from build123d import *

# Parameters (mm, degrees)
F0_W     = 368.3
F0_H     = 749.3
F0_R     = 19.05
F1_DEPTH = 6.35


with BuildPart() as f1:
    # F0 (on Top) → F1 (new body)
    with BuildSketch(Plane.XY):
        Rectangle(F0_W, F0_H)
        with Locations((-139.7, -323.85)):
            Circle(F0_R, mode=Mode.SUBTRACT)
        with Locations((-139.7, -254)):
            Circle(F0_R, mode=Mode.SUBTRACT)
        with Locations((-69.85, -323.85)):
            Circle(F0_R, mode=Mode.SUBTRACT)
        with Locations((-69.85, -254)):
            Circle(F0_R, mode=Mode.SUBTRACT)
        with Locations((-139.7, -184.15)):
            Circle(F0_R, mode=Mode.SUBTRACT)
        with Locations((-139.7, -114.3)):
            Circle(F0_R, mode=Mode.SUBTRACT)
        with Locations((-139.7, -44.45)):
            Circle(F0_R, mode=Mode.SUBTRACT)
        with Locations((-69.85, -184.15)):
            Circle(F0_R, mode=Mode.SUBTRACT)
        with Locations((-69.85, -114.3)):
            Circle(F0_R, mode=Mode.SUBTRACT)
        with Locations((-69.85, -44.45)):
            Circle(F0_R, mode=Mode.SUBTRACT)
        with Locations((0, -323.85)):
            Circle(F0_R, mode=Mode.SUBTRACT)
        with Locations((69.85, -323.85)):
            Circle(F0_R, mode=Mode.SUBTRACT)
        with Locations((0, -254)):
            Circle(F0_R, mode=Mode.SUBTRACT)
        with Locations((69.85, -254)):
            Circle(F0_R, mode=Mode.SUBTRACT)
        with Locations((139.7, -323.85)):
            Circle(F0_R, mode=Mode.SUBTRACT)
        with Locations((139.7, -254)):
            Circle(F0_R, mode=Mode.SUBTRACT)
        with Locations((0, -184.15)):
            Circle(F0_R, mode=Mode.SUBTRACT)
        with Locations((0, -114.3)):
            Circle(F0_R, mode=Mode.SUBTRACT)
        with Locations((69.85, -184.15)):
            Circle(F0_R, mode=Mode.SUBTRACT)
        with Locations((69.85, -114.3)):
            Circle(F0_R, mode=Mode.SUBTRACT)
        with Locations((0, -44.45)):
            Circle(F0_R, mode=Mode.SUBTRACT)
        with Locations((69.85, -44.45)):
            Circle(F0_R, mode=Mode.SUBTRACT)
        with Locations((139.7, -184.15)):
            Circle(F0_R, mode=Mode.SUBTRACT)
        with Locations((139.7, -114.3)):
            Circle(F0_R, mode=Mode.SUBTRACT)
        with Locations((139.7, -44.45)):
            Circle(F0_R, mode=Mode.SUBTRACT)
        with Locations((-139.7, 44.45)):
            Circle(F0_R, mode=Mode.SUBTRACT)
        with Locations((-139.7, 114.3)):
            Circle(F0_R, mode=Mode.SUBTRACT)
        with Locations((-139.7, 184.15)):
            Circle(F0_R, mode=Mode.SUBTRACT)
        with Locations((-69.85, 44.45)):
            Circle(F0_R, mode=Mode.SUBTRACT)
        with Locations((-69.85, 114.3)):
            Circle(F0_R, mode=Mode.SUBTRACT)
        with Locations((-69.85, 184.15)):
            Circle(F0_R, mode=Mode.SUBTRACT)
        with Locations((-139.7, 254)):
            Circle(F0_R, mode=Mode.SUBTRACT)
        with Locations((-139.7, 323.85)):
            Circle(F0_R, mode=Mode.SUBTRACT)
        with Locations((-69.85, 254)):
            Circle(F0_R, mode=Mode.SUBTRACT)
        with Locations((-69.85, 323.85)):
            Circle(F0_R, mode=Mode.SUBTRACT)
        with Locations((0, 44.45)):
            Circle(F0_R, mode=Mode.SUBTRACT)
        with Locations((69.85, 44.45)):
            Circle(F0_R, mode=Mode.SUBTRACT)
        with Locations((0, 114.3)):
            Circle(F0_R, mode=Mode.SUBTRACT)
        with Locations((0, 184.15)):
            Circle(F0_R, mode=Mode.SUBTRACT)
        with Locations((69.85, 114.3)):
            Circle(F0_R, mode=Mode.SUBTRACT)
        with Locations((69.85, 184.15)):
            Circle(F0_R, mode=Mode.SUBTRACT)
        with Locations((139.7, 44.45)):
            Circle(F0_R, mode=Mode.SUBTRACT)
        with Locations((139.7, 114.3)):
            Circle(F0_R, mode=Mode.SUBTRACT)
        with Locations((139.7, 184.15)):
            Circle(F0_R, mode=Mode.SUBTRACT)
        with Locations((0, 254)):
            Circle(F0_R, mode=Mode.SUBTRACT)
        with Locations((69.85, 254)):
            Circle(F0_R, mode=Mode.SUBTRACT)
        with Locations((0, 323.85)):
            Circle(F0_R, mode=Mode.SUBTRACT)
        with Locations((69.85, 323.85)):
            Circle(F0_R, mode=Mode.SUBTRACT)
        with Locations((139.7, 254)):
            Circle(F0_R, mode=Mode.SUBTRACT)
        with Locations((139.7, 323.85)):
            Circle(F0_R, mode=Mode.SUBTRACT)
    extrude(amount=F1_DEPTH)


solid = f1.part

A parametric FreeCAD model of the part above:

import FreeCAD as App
import Part
import Sketcher
Q = App.Units.Quantity


def add_polygon(sketch, points):
    """Adds a closed chain of lines whose ends are joined by coincident constraints."""
    first, n = sketch.GeometryCount, len(points)
    for a, b in zip(points, points[1:] + points[:1]):
        sketch.addGeometry(Part.LineSegment(App.Vector(*a, 0), App.Vector(*b, 0)), False)
    for i in range(n):
        sketch.addConstraint(Sketcher.Constraint("Coincident", first + i, 2, first + (i + 1) % n, 1))

doc = App.newDocument("Part")
body = doc.addObject("PartDesign::Body", "Body")

sketch1 = body.newObject("Sketcher::SketchObject", "Sketch")
sketch1.AttachmentSupport = (doc.getObject("XY_Plane"), [""])
sketch1.MapMode = "FlatFace"
add_polygon(sketch1, [(-184, 375), (-184, -375), (184, -375), (184, 375)])
sketch1.addGeometry(Part.Circle(App.Vector(-140, -324, 0), App.Vector(0, 0, 1), 19), False)
sketch1.addGeometry(Part.Circle(App.Vector(-140, -254, 0), App.Vector(0, 0, 1), 19), False)
sketch1.addGeometry(Part.Circle(App.Vector(-140, -184, 0), App.Vector(0, 0, 1), 19), False)
sketch1.addGeometry(Part.Circle(App.Vector(-70, -324, 0), App.Vector(0, 0, 1), 19), False)
sketch1.addGeometry(Part.Circle(App.Vector(-70, -254, 0), App.Vector(0, 0, 1), 19), False)
sketch1.addGeometry(Part.Circle(App.Vector(-70, -184, 0), App.Vector(0, 0, 1), 19), False)
sketch1.addGeometry(Part.Circle(App.Vector(-140, -114, 0), App.Vector(0, 0, 1), 19), False)
sketch1.addGeometry(Part.Circle(App.Vector(-140, -44, 0), App.Vector(0, 0, 1), 19), False)
sketch1.addGeometry(Part.Circle(App.Vector(-70, -114, 0), App.Vector(0, 0, 1), 19), False)
sketch1.addGeometry(Part.Circle(App.Vector(-70, -44, 0), App.Vector(0, 0, 1), 19), False)
sketch1.addGeometry(Part.Circle(App.Vector(0, -324, 0), App.Vector(0, 0, 1), 19), False)
sketch1.addGeometry(Part.Circle(App.Vector(70, -324, 0), App.Vector(0, 0, 1), 19), False)
sketch1.addGeometry(Part.Circle(App.Vector(0, -254, 0), App.Vector(0, 0, 1), 19), False)
sketch1.addGeometry(Part.Circle(App.Vector(0, -184, 0), App.Vector(0, 0, 1), 19), False)
sketch1.addGeometry(Part.Circle(App.Vector(70, -254, 0), App.Vector(0, 0, 1), 19), False)
sketch1.addGeometry(Part.Circle(App.Vector(70, -184, 0), App.Vector(0, 0, 1), 19), False)
sketch1.addGeometry(Part.Circle(App.Vector(140, -324, 0), App.Vector(0, 0, 1), 19), False)
sketch1.addGeometry(Part.Circle(App.Vector(140, -254, 0), App.Vector(0, 0, 1), 19), False)
sketch1.addGeometry(Part.Circle(App.Vector(140, -184, 0), App.Vector(0, 0, 1), 19), False)
sketch1.addGeometry(Part.Circle(App.Vector(0, -114, 0), App.Vector(0, 0, 1), 19), False)
sketch1.addGeometry(Part.Circle(App.Vector(70, -114, 0), App.Vector(0, 0, 1), 19), False)
sketch1.addGeometry(Part.Circle(App.Vector(0, -44, 0), App.Vector(0, 0, 1), 19), False)
sketch1.addGeometry(Part.Circle(App.Vector(70, -44, 0), App.Vector(0, 0, 1), 19), False)
sketch1.addGeometry(Part.Circle(App.Vector(140, -114, 0), App.Vector(0, 0, 1), 19), False)
sketch1.addGeometry(Part.Circle(App.Vector(140, -44, 0), App.Vector(0, 0, 1), 19), False)
sketch1.addGeometry(Part.Circle(App.Vector(-140, 44, 0), App.Vector(0, 0, 1), 19), False)
sketch1.addGeometry(Part.Circle(App.Vector(-140, 114, 0), App.Vector(0, 0, 1), 19), False)
sketch1.addGeometry(Part.Circle(App.Vector(-70, 44, 0), App.Vector(0, 0, 1), 19), False)
sketch1.addGeometry(Part.Circle(App.Vector(-70, 114, 0), App.Vector(0, 0, 1), 19), False)
sketch1.addGeometry(Part.Circle(App.Vector(-140, 184, 0), App.Vector(0, 0, 1), 19), False)
sketch1.addGeometry(Part.Circle(App.Vector(-140, 254, 0), App.Vector(0, 0, 1), 19), False)
sketch1.addGeometry(Part.Circle(App.Vector(-140, 324, 0), App.Vector(0, 0, 1), 19), False)
sketch1.addGeometry(Part.Circle(App.Vector(-70, 184, 0), App.Vector(0, 0, 1), 19), False)
sketch1.addGeometry(Part.Circle(App.Vector(-70, 254, 0), App.Vector(0, 0, 1), 19), False)
sketch1.addGeometry(Part.Circle(App.Vector(-70, 324, 0), App.Vector(0, 0, 1), 19), False)
sketch1.addGeometry(Part.Circle(App.Vector(0, 44, 0), App.Vector(0, 0, 1), 19), False)
sketch1.addGeometry(Part.Circle(App.Vector(70, 44, 0), App.Vector(0, 0, 1), 19), False)
sketch1.addGeometry(Part.Circle(App.Vector(0, 114, 0), App.Vector(0, 0, 1), 19), False)
sketch1.addGeometry(Part.Circle(App.Vector(70, 114, 0), App.Vector(0, 0, 1), 19), False)
sketch1.addGeometry(Part.Circle(App.Vector(140, 44, 0), App.Vector(0, 0, 1), 19), False)
sketch1.addGeometry(Part.Circle(App.Vector(140, 114, 0), App.Vector(0, 0, 1), 19), False)
sketch1.addGeometry(Part.Circle(App.Vector(0, 184, 0), App.Vector(0, 0, 1), 19), False)
sketch1.addGeometry(Part.Circle(App.Vector(0, 254, 0), App.Vector(0, 0, 1), 19), False)
sketch1.addGeometry(Part.Circle(App.Vector(70, 184, 0), App.Vector(0, 0, 1), 19), False)
sketch1.addGeometry(Part.Circle(App.Vector(70, 254, 0), App.Vector(0, 0, 1), 19), False)
sketch1.addGeometry(Part.Circle(App.Vector(0, 324, 0), App.Vector(0, 0, 1), 19), False)
sketch1.addGeometry(Part.Circle(App.Vector(70, 324, 0), App.Vector(0, 0, 1), 19), False)
sketch1.addGeometry(Part.Circle(App.Vector(140, 184, 0), App.Vector(0, 0, 1), 19), False)
sketch1.addGeometry(Part.Circle(App.Vector(140, 254, 0), App.Vector(0, 0, 1), 19), False)
sketch1.addGeometry(Part.Circle(App.Vector(140, 324, 0), App.Vector(0, 0, 1), 19), False)
sketch1.addConstraint([
    Sketcher.Constraint("Vertical", 0),
    Sketcher.Constraint("Horizontal", 1),
    Sketcher.Constraint("Vertical", 2),
    Sketcher.Constraint("Horizontal", 3),
    Sketcher.Constraint("Equal", 4, 5),
    Sketcher.Constraint("Equal", 5, 6),
    Sketcher.Constraint("Equal", 6, 7),
    Sketcher.Constraint("Equal", 7, 8),
    Sketcher.Constraint("Equal", 8, 9),
    Sketcher.Constraint("Equal", 9, 10),
    Sketcher.Constraint("Equal", 10, 11),
    Sketcher.Constraint("Equal", 11, 12),
    Sketcher.Constraint("Equal", 12, 13),
    Sketcher.Constraint("Equal", 13, 14),
    Sketcher.Constraint("Equal", 14, 15),
    Sketcher.Constraint("Equal", 15, 16),
    Sketcher.Constraint("Equal", 16, 17),
    Sketcher.Constraint("Equal", 17, 18),
    Sketcher.Constraint("Equal", 18, 19),
    Sketcher.Constraint("Equal", 19, 20),
    Sketcher.Constraint("Equal", 20, 21),
    Sketcher.Constraint("Equal", 21, 22),
    Sketcher.Constraint("Equal", 22, 23),
    Sketcher.Constraint("Equal", 23, 24),
    Sketcher.Constraint("Equal", 24, 25),
    Sketcher.Constraint("Equal", 25, 26),
    Sketcher.Constraint("Equal", 26, 27),
    Sketcher.Constraint("Equal", 27, 28),
    Sketcher.Constraint("Equal", 28, 29),
    Sketcher.Constraint("Equal", 29, 30),
    Sketcher.Constraint("Equal", 30, 31),
    Sketcher.Constraint("Equal", 31, 32),
    Sketcher.Constraint("Equal", 32, 33),
    Sketcher.Constraint("Equal", 33, 34),
    Sketcher.Constraint("Equal", 34, 35),
    Sketcher.Constraint("Equal", 35, 36),
    Sketcher.Constraint("Equal", 36, 37),
    Sketcher.Constraint("Equal", 37, 38),
    Sketcher.Constraint("Equal", 38, 39),
    Sketcher.Constraint("Equal", 39, 40),
    Sketcher.Constraint("Equal", 40, 41),
    Sketcher.Constraint("Equal", 41, 42),
    Sketcher.Constraint("Equal", 42, 43),
    Sketcher.Constraint("Equal", 43, 44),
    Sketcher.Constraint("Equal", 44, 45),
    Sketcher.Constraint("Equal", 45, 46),
    Sketcher.Constraint("Equal", 46, 47),
    Sketcher.Constraint("Equal", 47, 48),
    Sketcher.Constraint("Equal", 48, 49),
    Sketcher.Constraint("Equal", 49, 50),
    Sketcher.Constraint("Equal", 50, 51),
    Sketcher.Constraint("Equal", 51, 52),
    Sketcher.Constraint("Equal", 52, 53),
    Sketcher.Constraint("Symmetric", 28, 3, 29, 3, -1, 1),
    Sketcher.Constraint("Symmetric", 27, 3, 30, 3, -1, 1),
    Sketcher.Constraint("Symmetric", 26, 3, 31, 3, -1, 1),
    Sketcher.Constraint("Symmetric", 24, 3, 32, 3, -1, 1),
    Sketcher.Constraint("Symmetric", 22, 3, 33, 3, -1, 1),
    Sketcher.Constraint("Symmetric", 21, 3, 34, 3, -1, 1),
    Sketcher.Constraint("Symmetric", 20, 3, 35, 3, -1, 1),
    Sketcher.Constraint("Symmetric", 19, 3, 36, 3, -1, 1),
    Sketcher.Constraint("Symmetric", 18, 3, 37, 3, -1, 1),
    Sketcher.Constraint("Symmetric", 15, 3, 38, 3, -1, 1),
    Sketcher.Constraint("Symmetric", 25, 3, 39, 3, -1, 1),
    Sketcher.Constraint("Symmetric", 13, 3, 40, 3, -1, 1),
    Sketcher.Constraint("Symmetric", 23, 3, 41, 3, -1, 1),
    Sketcher.Constraint("Symmetric", 12, 3, 42, 3, -1, 1),
    Sketcher.Constraint("Symmetric", 11, 3, 43, 3, -1, 1),
    Sketcher.Constraint("Symmetric", 10, 3, 44, 3, -1, 1),
    Sketcher.Constraint("Symmetric", 17, 3, 45, 3, -1, 1),
    Sketcher.Constraint("Symmetric", 16, 3, 46, 3, -1, 1),
    Sketcher.Constraint("Symmetric", 9, 3, 47, 3, -1, 1),
    Sketcher.Constraint("Symmetric", 8, 3, 48, 3, -1, 1),
    Sketcher.Constraint("Symmetric", 14, 3, 49, 3, -1, 1),
    Sketcher.Constraint("Symmetric", 7, 3, 50, 3, -1, 1),
    Sketcher.Constraint("Symmetric", 6, 3, 51, 3, -1, 1),
    Sketcher.Constraint("Symmetric", 5, 3, 52, 3, -1, 1),
    Sketcher.Constraint("Symmetric", 4, 3, 53, 3, -1, 1),
    Sketcher.Constraint("Symmetric", 0, 2, 2, 2, -1, 1),
    Sketcher.Constraint("Symmetric", 7, 3, 15, 3, -2),
    Sketcher.Constraint("Symmetric", 8, 3, 18, 3, -2),
    Sketcher.Constraint("Symmetric", 9, 3, 19, 3, -2),
    Sketcher.Constraint("Symmetric", 4, 3, 20, 3, -2),
    Sketcher.Constraint("Symmetric", 5, 3, 21, 3, -2),
    Sketcher.Constraint("Symmetric", 6, 3, 22, 3, -2),
    Sketcher.Constraint("Symmetric", 12, 3, 24, 3, -2),
    Sketcher.Constraint("Symmetric", 13, 3, 26, 3, -2),
    Sketcher.Constraint("Symmetric", 10, 3, 27, 3, -2),
    Sketcher.Constraint("Symmetric", 11, 3, 28, 3, -2),
    Sketcher.Constraint("PointOnObject", 14, 3, -2),
    Sketcher.Constraint("PointOnObject", 16, 3, -2),
    Sketcher.Constraint("PointOnObject", 17, 3, -2),
    Sketcher.Constraint("PointOnObject", 23, 3, -2),
    Sketcher.Constraint("PointOnObject", 25, 3, -2),
    Sketcher.Constraint("Horizontal", 4, 3, 7, 3),
    Sketcher.Constraint("Horizontal", 5, 3, 8, 3),
    Sketcher.Constraint("Horizontal", 6, 3, 9, 3),
    Sketcher.Constraint("Horizontal", 10, 3, 12, 3),
    Sketcher.Constraint("Horizontal", 11, 3, 13, 3),
    Sketcher.Constraint("Horizontal", 7, 3, 14, 3),
    Sketcher.Constraint("Horizontal", 8, 3, 16, 3),
    Sketcher.Constraint("Horizontal", 9, 3, 17, 3),
    Sketcher.Constraint("Horizontal", 12, 3, 23, 3),
    Sketcher.Constraint("Horizontal", 13, 3, 25, 3),
    Sketcher.Constraint("Vertical", 4, 3, 5, 3),
    Sketcher.Constraint("Vertical", 5, 3, 6, 3),
    Sketcher.Constraint("Vertical", 7, 3, 8, 3),
    Sketcher.Constraint("Vertical", 8, 3, 9, 3),
    Sketcher.Constraint("Vertical", 6, 3, 10, 3),
    Sketcher.Constraint("Vertical", 10, 3, 11, 3),
    Sketcher.Constraint("Vertical", 9, 3, 12, 3),
    Sketcher.Constraint("Vertical", 12, 3, 13, 3),
    Sketcher.Constraint("Diameter", 4, Q("1.5 in")),
    Sketcher.Constraint("DistanceX", 1, 1, 1, 2, Q("14.5 in")),
    Sketcher.Constraint("DistanceY", 0, 2, 0, 1, Q("29.5 in")),
    Sketcher.Constraint("DistanceY", 5, 3, -1, 1, Q("10 in")),
    Sketcher.Constraint("DistanceY", 10, 3, 30, 3, Q("9 in")),
    Sketcher.Constraint("DistanceY", 11, 3, 33, 3, Q("9 in")),
    Sketcher.Constraint("DistanceY", 29, 3, 35, 3, Q("11 in")),
    Sketcher.Constraint("DistanceY", 0, 2, 4, 3, Q("2 in")),
    Sketcher.Constraint("DistanceX", 4, 3, -1, 1, Q("5.5 in")),
    Sketcher.Constraint("DistanceX", 7, 3, 15, 3, Q("5.5 in")),
])
pad1 = body.newObject("PartDesign::Pad", "Pad")
pad1.Profile = sketch1
pad1.Length = Q("0.25 in")

doc.recompute()
